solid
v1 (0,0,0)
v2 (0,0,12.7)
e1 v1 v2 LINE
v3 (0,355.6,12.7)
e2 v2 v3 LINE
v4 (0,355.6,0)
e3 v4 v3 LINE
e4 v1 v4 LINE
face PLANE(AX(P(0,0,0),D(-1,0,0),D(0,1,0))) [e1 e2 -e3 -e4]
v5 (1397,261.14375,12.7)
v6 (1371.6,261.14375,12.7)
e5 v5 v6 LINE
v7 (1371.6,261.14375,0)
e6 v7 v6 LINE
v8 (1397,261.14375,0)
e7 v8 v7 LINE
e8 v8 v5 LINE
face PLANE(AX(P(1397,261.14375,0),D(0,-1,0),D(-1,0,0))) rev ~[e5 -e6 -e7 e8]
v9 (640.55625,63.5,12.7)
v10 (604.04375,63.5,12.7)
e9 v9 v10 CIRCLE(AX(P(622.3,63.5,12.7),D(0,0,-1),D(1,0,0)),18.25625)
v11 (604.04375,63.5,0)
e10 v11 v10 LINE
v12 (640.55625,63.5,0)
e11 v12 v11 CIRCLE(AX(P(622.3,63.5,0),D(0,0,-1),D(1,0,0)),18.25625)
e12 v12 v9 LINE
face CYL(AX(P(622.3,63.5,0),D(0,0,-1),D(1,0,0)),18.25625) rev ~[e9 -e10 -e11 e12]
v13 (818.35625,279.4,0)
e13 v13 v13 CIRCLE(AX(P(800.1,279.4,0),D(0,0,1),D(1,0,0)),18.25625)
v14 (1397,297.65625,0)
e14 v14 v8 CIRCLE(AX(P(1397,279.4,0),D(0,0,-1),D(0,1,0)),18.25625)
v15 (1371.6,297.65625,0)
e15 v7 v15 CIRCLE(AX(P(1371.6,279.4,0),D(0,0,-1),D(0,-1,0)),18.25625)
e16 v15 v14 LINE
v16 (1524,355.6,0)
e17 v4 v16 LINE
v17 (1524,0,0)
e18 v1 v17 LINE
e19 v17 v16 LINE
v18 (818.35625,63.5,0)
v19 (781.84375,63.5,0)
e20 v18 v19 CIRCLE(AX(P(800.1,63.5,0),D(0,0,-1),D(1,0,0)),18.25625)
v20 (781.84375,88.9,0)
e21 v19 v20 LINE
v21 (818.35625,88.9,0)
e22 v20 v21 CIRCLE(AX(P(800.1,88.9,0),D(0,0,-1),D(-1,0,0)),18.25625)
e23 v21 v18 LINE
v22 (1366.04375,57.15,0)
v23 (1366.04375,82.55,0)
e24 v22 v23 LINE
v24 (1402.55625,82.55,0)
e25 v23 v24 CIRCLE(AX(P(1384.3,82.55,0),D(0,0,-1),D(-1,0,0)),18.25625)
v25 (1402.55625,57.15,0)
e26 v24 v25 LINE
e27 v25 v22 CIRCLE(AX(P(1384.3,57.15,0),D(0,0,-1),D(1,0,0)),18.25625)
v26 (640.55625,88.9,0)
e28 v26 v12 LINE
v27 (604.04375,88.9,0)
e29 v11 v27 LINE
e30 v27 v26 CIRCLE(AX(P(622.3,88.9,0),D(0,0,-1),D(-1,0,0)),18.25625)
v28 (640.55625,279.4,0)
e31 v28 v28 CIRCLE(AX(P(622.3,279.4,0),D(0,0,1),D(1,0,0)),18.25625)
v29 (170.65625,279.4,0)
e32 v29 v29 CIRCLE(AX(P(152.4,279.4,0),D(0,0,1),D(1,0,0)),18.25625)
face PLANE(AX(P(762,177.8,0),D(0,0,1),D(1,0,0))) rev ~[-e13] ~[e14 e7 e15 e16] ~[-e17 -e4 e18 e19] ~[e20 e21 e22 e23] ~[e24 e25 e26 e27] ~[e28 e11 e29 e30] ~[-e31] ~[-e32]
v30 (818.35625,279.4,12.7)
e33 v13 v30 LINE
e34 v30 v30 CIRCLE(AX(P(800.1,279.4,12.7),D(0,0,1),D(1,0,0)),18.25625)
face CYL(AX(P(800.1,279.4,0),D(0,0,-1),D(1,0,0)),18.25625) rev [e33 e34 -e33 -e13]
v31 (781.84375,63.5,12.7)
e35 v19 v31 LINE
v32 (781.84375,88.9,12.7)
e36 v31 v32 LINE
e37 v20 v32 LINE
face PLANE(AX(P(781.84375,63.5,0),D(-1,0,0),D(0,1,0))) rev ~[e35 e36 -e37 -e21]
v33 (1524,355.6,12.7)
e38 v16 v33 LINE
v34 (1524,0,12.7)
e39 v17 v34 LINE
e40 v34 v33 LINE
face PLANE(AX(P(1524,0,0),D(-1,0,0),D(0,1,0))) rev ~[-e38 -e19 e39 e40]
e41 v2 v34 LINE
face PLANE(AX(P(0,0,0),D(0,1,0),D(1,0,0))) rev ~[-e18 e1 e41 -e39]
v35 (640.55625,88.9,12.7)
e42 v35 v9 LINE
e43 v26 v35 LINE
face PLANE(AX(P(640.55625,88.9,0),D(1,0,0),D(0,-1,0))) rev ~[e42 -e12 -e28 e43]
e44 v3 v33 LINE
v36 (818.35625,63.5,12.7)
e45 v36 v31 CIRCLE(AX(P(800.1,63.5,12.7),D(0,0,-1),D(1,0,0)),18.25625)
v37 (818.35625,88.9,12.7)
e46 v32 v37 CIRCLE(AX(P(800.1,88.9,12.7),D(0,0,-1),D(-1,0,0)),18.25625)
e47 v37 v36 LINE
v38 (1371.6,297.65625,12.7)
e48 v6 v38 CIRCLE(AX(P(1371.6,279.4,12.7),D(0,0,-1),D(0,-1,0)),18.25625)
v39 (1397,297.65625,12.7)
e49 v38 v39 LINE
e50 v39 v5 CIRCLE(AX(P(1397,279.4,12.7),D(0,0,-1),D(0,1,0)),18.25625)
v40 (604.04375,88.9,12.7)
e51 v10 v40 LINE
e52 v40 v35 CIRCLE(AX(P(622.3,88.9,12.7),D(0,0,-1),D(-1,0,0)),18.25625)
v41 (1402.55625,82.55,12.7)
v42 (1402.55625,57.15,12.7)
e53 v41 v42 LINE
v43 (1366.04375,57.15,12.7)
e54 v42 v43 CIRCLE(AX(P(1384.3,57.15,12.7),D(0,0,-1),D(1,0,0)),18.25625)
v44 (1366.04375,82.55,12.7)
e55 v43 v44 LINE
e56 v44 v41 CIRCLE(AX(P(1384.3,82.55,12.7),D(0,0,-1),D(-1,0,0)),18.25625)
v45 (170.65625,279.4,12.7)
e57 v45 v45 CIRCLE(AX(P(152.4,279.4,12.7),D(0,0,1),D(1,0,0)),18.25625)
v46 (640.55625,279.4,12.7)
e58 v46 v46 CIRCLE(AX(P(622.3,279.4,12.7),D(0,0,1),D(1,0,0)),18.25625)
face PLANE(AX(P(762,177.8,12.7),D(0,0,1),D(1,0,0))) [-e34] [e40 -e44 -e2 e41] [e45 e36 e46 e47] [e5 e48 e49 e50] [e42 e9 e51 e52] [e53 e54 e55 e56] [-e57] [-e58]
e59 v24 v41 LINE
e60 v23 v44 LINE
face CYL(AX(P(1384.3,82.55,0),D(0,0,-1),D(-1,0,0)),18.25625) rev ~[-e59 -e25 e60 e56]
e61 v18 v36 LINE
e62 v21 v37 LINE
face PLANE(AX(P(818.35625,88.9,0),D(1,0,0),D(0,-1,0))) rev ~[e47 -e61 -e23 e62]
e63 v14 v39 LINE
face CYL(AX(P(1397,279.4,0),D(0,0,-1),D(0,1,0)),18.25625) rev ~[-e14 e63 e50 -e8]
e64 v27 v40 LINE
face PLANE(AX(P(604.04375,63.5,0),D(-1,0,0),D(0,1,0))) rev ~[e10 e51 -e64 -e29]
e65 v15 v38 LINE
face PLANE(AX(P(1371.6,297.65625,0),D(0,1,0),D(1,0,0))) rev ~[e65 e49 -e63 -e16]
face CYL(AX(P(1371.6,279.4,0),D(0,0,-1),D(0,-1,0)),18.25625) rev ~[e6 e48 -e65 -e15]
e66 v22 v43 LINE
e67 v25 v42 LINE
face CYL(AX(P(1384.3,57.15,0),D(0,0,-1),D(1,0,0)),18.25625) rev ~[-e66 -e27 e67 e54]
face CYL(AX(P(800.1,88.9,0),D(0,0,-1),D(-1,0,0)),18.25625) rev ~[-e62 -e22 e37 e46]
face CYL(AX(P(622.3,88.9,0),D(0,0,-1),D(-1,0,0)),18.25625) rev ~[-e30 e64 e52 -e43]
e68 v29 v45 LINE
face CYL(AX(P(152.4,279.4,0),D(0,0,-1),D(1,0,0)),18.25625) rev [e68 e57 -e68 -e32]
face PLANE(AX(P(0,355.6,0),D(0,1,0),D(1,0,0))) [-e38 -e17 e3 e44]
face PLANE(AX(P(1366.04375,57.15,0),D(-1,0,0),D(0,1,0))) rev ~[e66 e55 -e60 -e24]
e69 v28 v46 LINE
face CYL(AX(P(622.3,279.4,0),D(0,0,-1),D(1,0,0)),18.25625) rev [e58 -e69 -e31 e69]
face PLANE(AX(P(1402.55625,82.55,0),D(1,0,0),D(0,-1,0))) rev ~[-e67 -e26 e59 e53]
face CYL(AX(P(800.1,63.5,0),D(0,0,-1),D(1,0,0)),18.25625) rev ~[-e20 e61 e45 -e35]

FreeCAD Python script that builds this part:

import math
import FreeCAD as App
import Part
import Sketcher
Q = App.Units.Quantity


def add_polygon(sketch, points):
    """Adds a closed chain of lines whose ends are joined by coincident constraints."""
    first, n = sketch.GeometryCount, len(points)
    for a, b in zip(points, points[1:] + points[:1]):
        sketch.addGeometry(Part.LineSegment(App.Vector(*a, 0), App.Vector(*b, 0)), False)
    for i in range(n):
        sketch.addConstraint(Sketcher.Constraint("Coincident", first + i, 2, first + (i + 1) % n, 1))

doc = App.newDocument("Part")
body = doc.addObject("PartDesign::Body", "Body")

sketch1 = doc.addObject("Sketcher::SketchObject", "Sketch")
body.addObject(sketch1)
sketch1.AttachmentSupport = (doc.XY_Plane, [""])
sketch1.MapMode = "FlatFace"
add_polygon(sketch1, [(0, 356), (0, 0), (1524, 0), (1524, 356)])
sketch1.addGeometry(Part.ArcOfCircle(Part.Circle(App.Vector(622, 64, 0), App.Vector(0, 0, 1), 18), math.radians(180), math.radians(360)), False)
sketch1.addGeometry(Part.LineSegment(App.Vector(604, 64, 0), App.Vector(604, 89, 0)), False)
sketch1.addGeometry(Part.ArcOfCircle(Part.Circle(App.Vector(622, 89, 0), App.Vector(0, 0, 1), 18), math.radians(0), math.radians(180)), False)
sketch1.addGeometry(Part.LineSegment(App.Vector(641, 89, 0), App.Vector(641, 64, 0)), False)
sketch1.addGeometry(Part.ArcOfCircle(Part.Circle(App.Vector(800, 64, 0), App.Vector(0, 0, 1), 18), math.radians(180), math.radians(360)), False)
sketch1.addGeometry(Part.LineSegment(App.Vector(782, 64, 0), App.Vector(782, 89, 0)), False)
sketch1.addGeometry(Part.ArcOfCircle(Part.Circle(App.Vector(800, 89, 0), App.Vector(0, 0, 1), 18), math.radians(0), math.radians(180)), False)
sketch1.addGeometry(Part.LineSegment(App.Vector(818, 89, 0), App.Vector(818, 64, 0)), False)
sketch1.addGeometry(Part.ArcOfCircle(Part.Circle(App.Vector(1384, 57, 0), App.Vector(0, 0, 1), 18), math.radians(180), math.radians(360)), False)
sketch1.addGeometry(Part.LineSegment(App.Vector(1366, 57, 0), App.Vector(1366, 83, 0)), False)
sketch1.addGeometry(Part.ArcOfCircle(Part.Circle(App.Vector(1384, 83, 0), App.Vector(0, 0, 1), 18), math.radians(0), math.radians(180)), False)
sketch1.addGeometry(Part.LineSegment(App.Vector(1403, 83, 0), App.Vector(1403, 57, 0)), False)
sketch1.addGeometry(Part.Circle(App.Vector(152, 279, 0), App.Vector(0, 0, 1), 18), False)
sketch1.addGeometry(Part.Circle(App.Vector(622, 279, 0), App.Vector(0, 0, 1), 18), False)
sketch1.addGeometry(Part.Circle(App.Vector(800, 279, 0), App.Vector(0, 0, 1), 18), False)
sketch1.addGeometry(Part.ArcOfCircle(Part.Circle(App.Vector(1372, 279, 0), App.Vector(0, 0, 1), 18), math.radians(90), math.radians(270)), False)
sketch1.addGeometry(Part.LineSegment(App.Vector(1372, 298, 0), App.Vector(1397, 298, 0)), False)
sketch1.addGeometry(Part.ArcOfCircle(Part.Circle(App.Vector(1397, 279, 0), App.Vector(0, 0, 1), 18), math.radians(-90), math.radians(90)), False)
sketch1.addGeometry(Part.LineSegment(App.Vector(1397, 261, 0), App.Vector(1372, 261, 0)), False)
sketch1.addConstraint(Sketcher.Constraint("Tangent", 4, 1, 5, 1))
sketch1.addConstraint(Sketcher.Constraint("Tangent", 5, 2, 6, 2))
sketch1.addConstraint(Sketcher.Constraint("Tangent", 6, 1, 7, 1))
sketch1.addConstraint(Sketcher.Constraint("Tangent", 7, 2, 4, 2))
sketch1.addConstraint(Sketcher.Constraint("Tangent", 8, 1, 9, 1))
sketch1.addConstraint(Sketcher.Constraint("Tangent", 9, 2, 10, 2))
sketch1.addConstraint(Sketcher.Constraint("Tangent", 10, 1, 11, 1))
sketch1.addConstraint(Sketcher.Constraint("Tangent", 11, 2, 8, 2))
sketch1.addConstraint(Sketcher.Constraint("Tangent", 12, 1, 13, 1))
sketch1.addConstraint(Sketcher.Constraint("Tangent", 13, 2, 14, 2))
sketch1.addConstraint(Sketcher.Constraint("Tangent", 14, 1, 15, 1))
sketch1.addConstraint(Sketcher.Constraint("Tangent", 15, 2, 12, 2))
sketch1.addConstraint(Sketcher.Constraint("Tangent", 19, 1, 20, 1))
sketch1.addConstraint(Sketcher.Constraint("Tangent", 20, 2, 21, 2))
sketch1.addConstraint(Sketcher.Constraint("Tangent", 21, 1, 22, 1))
sketch1.addConstraint(Sketcher.Constraint("Tangent", 22, 2, 19, 2))
sketch1.addConstraint(Sketcher.Constraint("Vertical", 0))
sketch1.addConstraint(Sketcher.Constraint("Horizontal", 1))
sketch1.addConstraint(Sketcher.Constraint("Vertical", 2))
sketch1.addConstraint(Sketcher.Constraint("Horizontal", 3))
sketch1.addConstraint(Sketcher.Constraint("Vertical", 5))
sketch1.addConstraint(Sketcher.Constraint("Vertical", 7))
sketch1.addConstraint(Sketcher.Constraint("Vertical", 9))
sketch1.addConstraint(Sketcher.Constraint("Vertical", 11))
sketch1.addConstraint(Sketcher.Constraint("Vertical", 13))
sketch1.addConstraint(Sketcher.Constraint("Vertical", 15))
sketch1.addConstraint(Sketcher.Constraint("Horizontal", 20))
sketch1.addConstraint(Sketcher.Constraint("Horizontal", 22))
sketch1.addConstraint(Sketcher.Constraint("Coincident", 0, 2, -1, 1))
sketch1.addConstraint(Sketcher.Constraint("Equal", 6, 8))
sketch1.addConstraint(Sketcher.Constraint("Equal", 10, 12))
sketch1.addConstraint(Sketcher.Constraint("Equal", 14, 16))
sketch1.addConstraint(Sketcher.Constraint("Equal", 16, 17))
sketch1.addConstraint(Sketcher.Constraint("Equal", 17, 18))
sketch1.addConstraint(Sketcher.Constraint("Equal", 18, 19))
sketch1.addConstraint(Sketcher.Constraint("Horizontal", 4, 3, 8, 3))
sketch1.addConstraint(Sketcher.Constraint("Horizontal", 6, 3, 10, 3))
sketch1.addConstraint(Sketcher.Constraint("Horizontal", 16, 3, 17, 3))
sketch1.addConstraint(Sketcher.Constraint("Horizontal", 17, 3, 18, 3))
sketch1.addConstraint(Sketcher.Constraint("Horizontal", 18, 3, 19, 3))
sketch1.addConstraint(Sketcher.Constraint("Vertical", 6, 3, 17, 3))
sketch1.addConstraint(Sketcher.Constraint("Vertical", 10, 3, 18, 3))
sketch1.addConstraint(Sketcher.Constraint("Equal", 22, 5))
sketch1.addConstraint(Sketcher.Constraint("Equal", 11, 13))
sketch1.addConstraint(Sketcher.Constraint("DistanceX", 1, 1, 1, 2, Q("60 in")))
sketch1.addConstraint(Sketcher.Constraint("DistanceX", 20, 1, 20, 2, Q("1 in")))
sketch1.addConstraint(Sketcher.Constraint("DistanceY", 0, 2, 0, 1, Q("14 in")))
sketch1.addConstraint(Sketcher.Constraint("Diameter", 16, Q("1.4375 in")))
sketch1.addConstraint(Sketcher.Constraint("DistanceX", -1, 1, 16, 3, Q("6 in")))
sketch1.addConstraint(Sketcher.Constraint("DistanceY", -1, 1, 16, 3, Q("11 in")))
sketch1.addConstraint(Sketcher.Constraint("DistanceX", -1, 1, 19, 3, Q("54 in")))
sketch1.addConstraint(Sketcher.Constraint("DistanceX", 4, 3, 8, 3, Q("7 in")))
sketch1.addConstraint(Sketcher.Constraint("DistanceX", 8, 3, 12, 3, Q("23 in")))
sketch1.addConstraint(Sketcher.Constraint("DistanceX", -1, 1, 4, 3, Q("24.5 in")))
sketch1.addConstraint(Sketcher.Constraint("DistanceY", -1, 1, 4, 3, Q("2.5 in")))
sketch1.addConstraint(Sketcher.Constraint("DistanceY", -1, 1, 12, 3, Q("2.25 in")))
pad1 = doc.addObject("PartDesign::Pad", "Pad")
body.addObject(pad1)
pad1.Profile = sketch1
pad1.Length = Q("0.5 in")

doc.recompute()
